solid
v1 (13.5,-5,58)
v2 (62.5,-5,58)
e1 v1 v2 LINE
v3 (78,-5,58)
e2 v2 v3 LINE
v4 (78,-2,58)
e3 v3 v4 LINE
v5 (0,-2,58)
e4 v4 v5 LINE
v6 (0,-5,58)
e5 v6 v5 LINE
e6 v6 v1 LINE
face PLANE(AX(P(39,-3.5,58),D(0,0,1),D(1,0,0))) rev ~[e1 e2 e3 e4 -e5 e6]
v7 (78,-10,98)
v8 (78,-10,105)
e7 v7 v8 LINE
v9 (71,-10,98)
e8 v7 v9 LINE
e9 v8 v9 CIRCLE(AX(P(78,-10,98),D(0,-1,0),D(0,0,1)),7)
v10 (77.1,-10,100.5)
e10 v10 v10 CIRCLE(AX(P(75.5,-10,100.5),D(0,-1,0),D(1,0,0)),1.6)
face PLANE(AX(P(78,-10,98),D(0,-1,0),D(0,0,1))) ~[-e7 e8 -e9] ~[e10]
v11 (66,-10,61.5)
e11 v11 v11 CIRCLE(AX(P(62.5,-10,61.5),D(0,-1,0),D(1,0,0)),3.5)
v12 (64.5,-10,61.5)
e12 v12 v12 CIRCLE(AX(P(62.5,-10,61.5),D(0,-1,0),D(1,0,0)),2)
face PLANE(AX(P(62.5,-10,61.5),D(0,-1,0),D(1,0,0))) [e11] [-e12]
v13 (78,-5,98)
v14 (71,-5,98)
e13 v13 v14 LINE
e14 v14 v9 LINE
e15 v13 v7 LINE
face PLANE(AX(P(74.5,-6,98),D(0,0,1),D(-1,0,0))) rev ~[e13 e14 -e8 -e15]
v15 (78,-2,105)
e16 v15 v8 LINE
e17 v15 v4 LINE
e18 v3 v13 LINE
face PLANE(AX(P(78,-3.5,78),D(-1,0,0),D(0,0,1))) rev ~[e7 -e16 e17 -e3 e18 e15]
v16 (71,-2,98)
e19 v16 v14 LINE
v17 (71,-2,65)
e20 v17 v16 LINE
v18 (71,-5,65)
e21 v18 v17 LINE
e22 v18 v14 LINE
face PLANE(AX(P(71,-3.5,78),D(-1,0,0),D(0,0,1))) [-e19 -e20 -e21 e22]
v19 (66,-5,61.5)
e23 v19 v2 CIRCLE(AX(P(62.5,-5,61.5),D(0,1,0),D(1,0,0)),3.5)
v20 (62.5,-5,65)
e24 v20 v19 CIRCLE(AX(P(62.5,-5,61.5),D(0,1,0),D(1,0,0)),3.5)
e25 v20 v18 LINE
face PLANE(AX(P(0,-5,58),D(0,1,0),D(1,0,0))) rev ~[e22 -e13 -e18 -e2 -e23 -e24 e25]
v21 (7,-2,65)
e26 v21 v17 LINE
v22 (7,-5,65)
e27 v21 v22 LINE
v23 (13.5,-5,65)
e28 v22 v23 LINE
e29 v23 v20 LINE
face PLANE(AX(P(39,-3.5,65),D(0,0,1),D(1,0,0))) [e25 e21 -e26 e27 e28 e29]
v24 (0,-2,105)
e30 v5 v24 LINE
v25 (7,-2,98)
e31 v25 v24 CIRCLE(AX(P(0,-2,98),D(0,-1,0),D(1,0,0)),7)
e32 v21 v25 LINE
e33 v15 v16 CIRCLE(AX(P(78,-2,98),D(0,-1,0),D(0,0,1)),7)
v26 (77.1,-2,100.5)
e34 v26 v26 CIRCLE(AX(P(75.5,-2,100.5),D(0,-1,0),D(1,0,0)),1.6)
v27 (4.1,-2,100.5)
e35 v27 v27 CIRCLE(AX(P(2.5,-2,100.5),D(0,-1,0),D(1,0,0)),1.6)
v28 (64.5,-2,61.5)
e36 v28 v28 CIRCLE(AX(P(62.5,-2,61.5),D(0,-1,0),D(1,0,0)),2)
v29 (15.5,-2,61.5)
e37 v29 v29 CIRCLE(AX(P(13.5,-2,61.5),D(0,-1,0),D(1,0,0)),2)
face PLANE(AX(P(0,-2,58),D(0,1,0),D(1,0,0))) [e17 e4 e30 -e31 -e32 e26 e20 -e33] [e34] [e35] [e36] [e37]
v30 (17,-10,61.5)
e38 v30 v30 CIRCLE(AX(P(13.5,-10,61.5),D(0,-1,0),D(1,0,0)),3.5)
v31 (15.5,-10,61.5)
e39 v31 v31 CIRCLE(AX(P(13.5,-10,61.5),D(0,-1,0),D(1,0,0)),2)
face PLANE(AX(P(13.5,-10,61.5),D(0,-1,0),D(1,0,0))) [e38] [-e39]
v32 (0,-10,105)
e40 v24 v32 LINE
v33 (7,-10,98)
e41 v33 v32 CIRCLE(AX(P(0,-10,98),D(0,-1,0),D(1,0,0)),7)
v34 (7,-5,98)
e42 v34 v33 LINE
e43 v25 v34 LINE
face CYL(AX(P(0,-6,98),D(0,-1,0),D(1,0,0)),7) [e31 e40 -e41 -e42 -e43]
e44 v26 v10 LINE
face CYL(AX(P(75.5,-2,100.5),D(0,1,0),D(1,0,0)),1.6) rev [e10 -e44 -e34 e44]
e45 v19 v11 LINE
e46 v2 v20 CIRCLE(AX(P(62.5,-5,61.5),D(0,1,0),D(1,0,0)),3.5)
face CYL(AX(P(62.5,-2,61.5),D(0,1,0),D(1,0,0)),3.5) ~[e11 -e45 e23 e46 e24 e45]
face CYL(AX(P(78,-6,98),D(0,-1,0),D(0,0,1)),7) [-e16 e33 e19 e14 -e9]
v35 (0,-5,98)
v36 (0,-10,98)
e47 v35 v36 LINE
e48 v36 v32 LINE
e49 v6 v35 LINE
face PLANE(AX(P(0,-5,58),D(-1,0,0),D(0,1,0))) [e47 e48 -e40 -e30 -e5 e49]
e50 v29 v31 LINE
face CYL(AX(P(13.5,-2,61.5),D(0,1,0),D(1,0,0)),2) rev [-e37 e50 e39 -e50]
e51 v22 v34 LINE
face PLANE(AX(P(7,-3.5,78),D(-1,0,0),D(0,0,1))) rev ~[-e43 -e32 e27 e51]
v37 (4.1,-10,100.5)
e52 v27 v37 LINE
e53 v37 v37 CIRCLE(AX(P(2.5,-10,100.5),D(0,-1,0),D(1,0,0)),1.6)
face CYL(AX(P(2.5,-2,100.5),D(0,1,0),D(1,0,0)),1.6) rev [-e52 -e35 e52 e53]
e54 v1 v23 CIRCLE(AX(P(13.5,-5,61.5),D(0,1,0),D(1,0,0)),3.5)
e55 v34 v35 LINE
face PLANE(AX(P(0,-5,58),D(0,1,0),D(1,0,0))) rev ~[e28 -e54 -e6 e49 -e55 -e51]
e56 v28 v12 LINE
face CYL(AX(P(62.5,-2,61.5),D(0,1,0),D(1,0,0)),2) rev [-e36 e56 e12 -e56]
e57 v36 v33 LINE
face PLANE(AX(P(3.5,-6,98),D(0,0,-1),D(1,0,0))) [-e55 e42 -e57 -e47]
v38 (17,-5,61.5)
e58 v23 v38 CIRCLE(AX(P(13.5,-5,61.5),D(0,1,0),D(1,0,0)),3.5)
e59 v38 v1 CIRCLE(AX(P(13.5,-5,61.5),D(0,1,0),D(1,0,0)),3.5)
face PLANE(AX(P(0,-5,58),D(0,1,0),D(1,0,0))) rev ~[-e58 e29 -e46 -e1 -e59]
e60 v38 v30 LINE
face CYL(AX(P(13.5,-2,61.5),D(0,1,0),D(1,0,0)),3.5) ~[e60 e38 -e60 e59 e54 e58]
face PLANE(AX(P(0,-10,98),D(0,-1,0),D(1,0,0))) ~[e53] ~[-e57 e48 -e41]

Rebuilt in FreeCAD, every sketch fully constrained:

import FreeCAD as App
import Part
import Sketcher
Q = App.Units.Quantity


def add_polygon(sketch, points):
    """Adds a closed chain of lines whose ends are joined by coincident constraints."""
    first, n = sketch.GeometryCount, len(points)
    for a, b in zip(points, points[1:] + points[:1]):
        sketch.addGeometry(Part.LineSegment(App.Vector(*a, 0), App.Vector(*b, 0)), False)
    for i in range(n):
        sketch.addConstraint(Sketcher.Constraint("Coincident", first + i, 2, first + (i + 1) % n, 1))

doc = App.newDocument("Part")
body = doc.addObject("PartDesign::Body", "Body")

sketch1 = doc.addObject("Sketcher::SketchObject", "Sketch")
body.addObject(sketch1)
sketch1.AttachmentSupport = (doc.XZ_Plane, [""])
sketch1.MapMode = "FlatFace"
sketch1.AttachmentOffset = App.Placement(App.Vector(0, 0, 2), App.Rotation())
sketch1.addGeometry(Part.Circle(App.Vector(13.5, 61.5, 0), App.Vector(0, 0, 1), 2), False)
sketch1.addConstraint(Sketcher.Constraint("Diameter", 0, Q("4 mm")))
sketch1.addConstraint(Sketcher.Constraint("DistanceX", -1, 1, 0, 3, Q("13.5 mm")))
sketch1.addConstraint(Sketcher.Constraint("DistanceY", -1, 1, 0, 3, Q("61.5 mm")))
pad1 = doc.addObject("PartDesign::Pad", "Pad")
body.addObject(pad1)
pad1.Profile = sketch1
pad1.Length = 8
body2 = doc.addObject("PartDesign::Body", "Body001")

sketch2 = doc.addObject("Sketcher::SketchObject", "Sketch001")
body2.addObject(sketch2)
sketch2.AttachmentSupport = (doc.getObject("XZ_Plane001"), [""])
sketch2.MapMode = "FlatFace"
sketch2.AttachmentOffset = App.Placement(App.Vector(0, 0, 2), App.Rotation())
sketch2.addGeometry(Part.Circle(App.Vector(62.5, 61.5, 0), App.Vector(0, 0, 1), 2), False)
sketch2.addConstraint(Sketcher.Constraint("Diameter", 0, Q("4 mm")))
sketch2.addConstraint(Sketcher.Constraint("DistanceX", -1, 1, 0, 3, Q("62.5 mm")))
sketch2.addConstraint(Sketcher.Constraint("DistanceY", -1, 1, 0, 3, Q("61.5 mm")))
pad2 = doc.addObject("PartDesign::Pad", "Pad001")
body2.addObject(pad2)
pad2.Profile = sketch2
pad2.Length = 8
body3 = doc.addObject("PartDesign::Body", "Body002")

sketch3 = doc.addObject("Sketcher::SketchObject", "Sketch002")
body3.addObject(sketch3)
sketch3.AttachmentSupport = (doc.getObject("XZ_Plane002"), [""])
sketch3.MapMode = "FlatFace"
sketch3.AttachmentOffset = App.Placement(App.Vector(0, 0, 2), App.Rotation())
sketch3.addGeometry(Part.Circle(App.Vector(75.5, 100.5, 0), App.Vector(0, 0, 1), 1.6), False)
sketch3.addConstraint(Sketcher.Constraint("Diameter", 0, Q("3.2 mm")))
sketch3.addConstraint(Sketcher.Constraint("DistanceX", -1, 1, 0, 3, Q("75.5 mm")))
sketch3.addConstraint(Sketcher.Constraint("DistanceY", -1, 1, 0, 3, Q("100.5 mm")))
pad3 = doc.addObject("PartDesign::Pad", "Pad002")
body3.addObject(pad3)
pad3.Profile = sketch3
pad3.Length = 8
body4 = doc.addObject("PartDesign::Body", "Body003")
body4.AllowCompound = True

sketch4 = doc.addObject("Sketcher::SketchObject", "Sketch003")
body4.addObject(sketch4)
sketch4.AttachmentSupport = (doc.getObject("XZ_Plane003"), [""])
sketch4.MapMode = "FlatFace"
sketch4.AttachmentOffset = App.Placement(App.Vector(0, 0, 2), App.Rotation())
sketch4.addGeometry(Part.Circle(App.Vector(2.5, 100.5, 0), App.Vector(0, 0, 1), 1.6), False)
sketch4.addConstraint(Sketcher.Constraint("Diameter", 0, Q("3.2 mm")))
sketch4.addConstraint(Sketcher.Constraint("DistanceX", -1, 1, 0, 3, Q("2.5 mm")))
sketch4.addConstraint(Sketcher.Constraint("DistanceY", -1, 1, 0, 3, Q("100.5 mm")))
pad4 = doc.addObject("PartDesign::Pad", "Pad003")
body4.addObject(pad4)
pad4.Profile = sketch4
pad4.Length = 8
doc.recompute()

boolean = doc.addObject("PartDesign::Boolean", "Boolean")
body4.addObject(boolean)
boolean.Type = "Fuse"
boolean.addObjects([body])
doc.recompute()

boolean2 = doc.addObject("PartDesign::Boolean", "Boolean001")
body4.addObject(boolean2)
boolean2.Type = "Fuse"
boolean2.addObjects([body2])
doc.recompute()

boolean3 = doc.addObject("PartDesign::Boolean", "Boolean002")
body4.addObject(boolean3)
boolean3.Type = "Fuse"
boolean3.addObjects([body3])
body5 = doc.addObject("PartDesign::Body", "Body004")

sketch5 = doc.addObject("Sketcher::SketchObject", "Sketch004")
body5.addObject(sketch5)
sketch5.AttachmentSupport = (doc.getObject("XY_Plane004"), [""])
sketch5.MapMode = "FlatFace"
sketch5.AttachmentOffset = App.Placement(App.Vector(0, 0, 98), App.Rotation())
add_polygon(sketch5, [(0, -10), (0, -2), (7, -2), (7, -10)])
sketch5.addConstraint(Sketcher.Constraint("Vertical", 0))
sketch5.addConstraint(Sketcher.Constraint("Horizontal", 1))
sketch5.addConstraint(Sketcher.Constraint("Vertical", 2))
sketch5.addConstraint(Sketcher.Constraint("Horizontal", 3))
sketch5.addConstraint(Sketcher.Constraint("PointOnObject", 0, 2, -2))
sketch5.addConstraint(Sketcher.Constraint("DistanceX", 1, 1, 1, 2, Q("7 mm")))
sketch5.addConstraint(Sketcher.Constraint("DistanceY", 0, 1, 0, 2, Q("8 mm")))
sketch5.addConstraint(Sketcher.Constraint("DistanceY", 0, 2, -1, 1, Q("2 mm")))
revolution = doc.addObject("PartDesign::Revolution", "Revolution")
body5.addObject(revolution)
revolution.Profile = sketch5
revolution.ReferenceAxis = (sketch5, ["V_Axis"])
revolution.Angle = 90
revolution.Reversed = True
body6 = doc.addObject("PartDesign::Body", "Body005")

sketch6 = doc.addObject("Sketcher::SketchObject", "Sketch005")
body6.addObject(sketch6)
sketch6.AttachmentSupport = (doc.getObject("XY_Plane005"), [""])
sketch6.MapMode = "FlatFace"
sketch6.AttachmentOffset = App.Placement(App.Vector(0, 0, 58), App.Rotation())
add_polygon(sketch6, [(0, -2), (0, -5), (78, -5), (78, -2)])
sketch6.addConstraint(Sketcher.Constraint("Vertical", 0))
sketch6.addConstraint(Sketcher.Constraint("Horizontal", 1))
sketch6.addConstraint(Sketcher.Constraint("Vertical", 2))
sketch6.addConstraint(Sketcher.Constraint("Horizontal", 3))
sketch6.addConstraint(Sketcher.Constraint("PointOnObject", 0, 2, -2))
sketch6.addConstraint(Sketcher.Constraint("DistanceX", 1, 1, 1, 2, Q("78 mm")))
sketch6.addConstraint(Sketcher.Constraint("DistanceY", 0, 2, 0, 1, Q("3 mm")))
sketch6.addConstraint(Sketcher.Constraint("DistanceY", 0, 2, -1, 1, Q("5 mm")))
pad5 = doc.addObject("PartDesign::Pad", "Pad004")
body6.addObject(pad5)
pad5.Profile = sketch6
pad5.Length = 7
body7 = doc.addObject("PartDesign::Body", "Body006")

sketch7 = doc.addObject("Sketcher::SketchObject", "Sketch006")
body7.addObject(sketch7)
sketch7.AttachmentSupport = (doc.getObject("YZ_Plane006"), [""])
sketch7.MapMode = "FlatFace"
sketch7.AttachmentOffset = App.Placement(App.Vector(0, 0, 7), App.Rotation())
add_polygon(sketch7, [(-2, 58), (-5, 58), (-5, 98), (-2, 98)])
sketch7.addConstraint(Sketcher.Constraint("Horizontal", 0))
sketch7.addConstraint(Sketcher.Constraint("Vertical", 1))
sketch7.addConstraint(Sketcher.Constraint("Horizontal", 2))
sketch7.addConstraint(Sketcher.Constraint("Vertical", 3))
sketch7.addConstraint(Sketcher.Constraint("DistanceX", 0, 2, 0, 1, Q("3 mm")))
sketch7.addConstraint(Sketcher.Constraint("DistanceY", 1, 1, 1, 2, Q("40 mm")))
sketch7.addConstraint(Sketcher.Constraint("DistanceX", 0, 2, -1, 1, Q("5 mm")))
sketch7.addConstraint(Sketcher.Constraint("DistanceY", -1, 1, 0, 2, Q("58 mm")))
pad6 = doc.addObject("PartDesign::Pad", "Pad005")
body7.addObject(pad6)
pad6.Profile = sketch7
pad6.Length = 7
pad6.Reversed = True
body8 = doc.addObject("PartDesign::Body", "Body007")

sketch8 = doc.addObject("Sketcher::SketchObject", "Sketch007")
body8.addObject(sketch8)
sketch8.AttachmentSupport = (doc.getObject("XZ_Plane007"), [""])
sketch8.MapMode = "FlatFace"
sketch8.AttachmentOffset = App.Placement(App.Vector(0, 0, 2), App.Rotation())
sketch8.addGeometry(Part.Circle(App.Vector(62.5, 61.5, 0), App.Vector(0, 0, 1), 3.5), False)
sketch8.addConstraint(Sketcher.Constraint("Diameter", 0, Q("7 mm")))
sketch8.addConstraint(Sketcher.Constraint("DistanceX", -1, 1, 0, 3, Q("62.5 mm")))
sketch8.addConstraint(Sketcher.Constraint("DistanceY", -1, 1, 0, 3, Q("61.5 mm")))
pad7 = doc.addObject("PartDesign::Pad", "Pad006")
body8.addObject(pad7)
pad7.Profile = sketch8
pad7.Length = 8
body9 = doc.addObject("PartDesign::Body", "Body008")

sketch9 = doc.addObject("Sketcher::SketchObject", "Sketch008")
body9.addObject(sketch9)
sketch9.AttachmentSupport = (doc.getObject("XZ_Plane008"), [""])
sketch9.MapMode = "FlatFace"
sketch9.AttachmentOffset = App.Placement(App.Vector(0, 0, 2), App.Rotation())
sketch9.addGeometry(Part.Circle(App.Vector(13.5, 61.5, 0), App.Vector(0, 0, 1), 3.5), False)
sketch9.addConstraint(Sketcher.Constraint("Diameter", 0, Q("7 mm")))
sketch9.addConstraint(Sketcher.Constraint("DistanceX", -1, 1, 0, 3, Q("13.5 mm")))
sketch9.addConstraint(Sketcher.Constraint("DistanceY", -1, 1, 0, 3, Q("61.5 mm")))
pad8 = doc.addObject("PartDesign::Pad", "Pad007")
body9.addObject(pad8)
pad8.Profile = sketch9
pad8.Length = 8
body10 = doc.addObject("PartDesign::Body", "Body009")

sketch10 = doc.addObject("Sketcher::SketchObject", "Sketch009")
body10.addObject(sketch10)
sketch10.AttachmentSupport = (doc.getObject("YZ_Plane009"), [""])
sketch10.MapMode = "FlatFace"
sketch10.AttachmentOffset = App.Placement(App.Vector(0, 0, 78), App.Rotation())
add_polygon(sketch10, [(-2, 58), (-5, 58), (-5, 98), (-2, 98)])
sketch10.addConstraint(Sketcher.Constraint("Horizontal", 0))
sketch10.addConstraint(Sketcher.Constraint("Vertical", 1))
sketch10.addConstraint(Sketcher.Constraint("Horizontal", 2))
sketch10.addConstraint(Sketcher.Constraint("Vertical", 3))
sketch10.addConstraint(Sketcher.Constraint("DistanceX", 0, 2, 0, 1, Q("3 mm")))
sketch10.addConstraint(Sketcher.Constraint("DistanceY", 1, 1, 1, 2, Q("40 mm")))
sketch10.addConstraint(Sketcher.Constraint("DistanceX", 0, 2, -1, 1, Q("5 mm")))
sketch10.addConstraint(Sketcher.Constraint("DistanceY", -1, 1, 0, 2, Q("58 mm")))
pad9 = doc.addObject("PartDesign::Pad", "Pad008")
body10.addObject(pad9)
pad9.Profile = sketch10
pad9.Length = 7
pad9.Reversed = True
doc.recompute()

boolean4 = doc.addObject("PartDesign::Boolean", "Boolean003")
body10.addObject(boolean4)
boolean4.Type = "Fuse"
boolean4.addObjects([body6])
doc.recompute()

boolean5 = doc.addObject("PartDesign::Boolean", "Boolean004")
body10.addObject(boolean5)
boolean5.Type = "Fuse"
boolean5.addObjects([body7])
doc.recompute()

boolean6 = doc.addObject("PartDesign::Boolean", "Boolean005")
body10.addObject(boolean6)
boolean6.Type = "Fuse"
boolean6.addObjects([body8])
doc.recompute()

boolean7 = doc.addObject("PartDesign::Boolean", "Boolean006")
body10.addObject(boolean7)
boolean7.Type = "Fuse"
boolean7.addObjects([body9])
body11 = doc.addObject("PartDesign::Body", "Body010")
body11.AllowCompound = True

sketch11 = doc.addObject("Sketcher::SketchObject", "Sketch010")
body11.addObject(sketch11)
sketch11.AttachmentSupport = (doc.getObject("YZ_Plane010"), [""])
sketch11.MapMode = "FlatFace"
sketch11.AttachmentOffset = App.Placement(App.Vector(0, 0, 78), App.Rotation())
add_polygon(sketch11, [(-10, 98), (-2, 98), (-2, 105), (-10, 105)])
sketch11.addGeometry(Part.LineSegment(App.Vector(-2, 98, 0), App.Vector(-10, 98, 0)), True)
sketch11.addConstraint(Sketcher.Constraint("Horizontal", 0))
sketch11.addConstraint(Sketcher.Constraint("Vertical", 1))
sketch11.addConstraint(Sketcher.Constraint("Horizontal", 2))
sketch11.addConstraint(Sketcher.Constraint("Vertical", 3))
sketch11.addConstraint(Sketcher.Constraint("Horizontal", 4))
sketch11.addConstraint(Sketcher.Constraint("Coincident", 4, 1, 0, 2))
sketch11.addConstraint(Sketcher.Constraint("Vertical", 2, 2, 4, 2))
sketch11.addConstraint(Sketcher.Constraint("DistanceX", 0, 1, 0, 2, Q("8 mm")))
sketch11.addConstraint(Sketcher.Constraint("DistanceY", 1, 1, 1, 2, Q("7 mm")))
sketch11.addConstraint(Sketcher.Constraint("DistanceX", 0, 2, -1, 1, Q("2 mm")))
sketch11.addConstraint(Sketcher.Constraint("DistanceY", -1, 1, 0, 2, Q("98 mm")))
revolution2 = doc.addObject("PartDesign::Revolution", "Revolution001")
body11.addObject(revolution2)
revolution2.Profile = sketch11
revolution2.ReferenceAxis = (sketch11, ["Axis0"])
revolution2.Angle = 90
doc.recompute()

boolean8 = doc.addObject("PartDesign::Boolean", "Boolean007")
body11.addObject(boolean8)
boolean8.Type = "Fuse"
boolean8.addObjects([body5])
doc.recompute()

boolean9 = doc.addObject("PartDesign::Boolean", "Boolean008")
body11.addObject(boolean9)
boolean9.Type = "Fuse"
boolean9.addObjects([body10])
doc.recompute()

boolean10 = doc.addObject("PartDesign::Boolean", "Boolean009")
body11.addObject(boolean10)
boolean10.Type = "Cut"
boolean10.addObjects([body4])

doc.recompute()
